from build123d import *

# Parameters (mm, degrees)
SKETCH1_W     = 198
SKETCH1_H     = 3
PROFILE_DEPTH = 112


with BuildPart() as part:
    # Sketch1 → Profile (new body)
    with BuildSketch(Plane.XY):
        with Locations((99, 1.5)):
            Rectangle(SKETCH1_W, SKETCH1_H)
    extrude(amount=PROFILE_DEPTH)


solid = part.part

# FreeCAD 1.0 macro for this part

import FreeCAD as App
import Part
import Sketcher

V = App.Vector
Q = App.Units.Quantity

doc = App.newDocument("Part")
body = doc.addObject("PartDesign::Body", "Body")

# Sketch on XY plane
sketch1 = body.newObject("Sketcher::SketchObject", "Sketch")
sketch1.AttachmentSupport = (doc.getObject("XY_Plane"), [""])
sketch1.MapMode = "FlatFace"
sketch1.addGeometry(Part.LineSegment(V(0, 3, 0), V(0, 0, 0)), False)
sketch1.addGeometry(Part.LineSegment(V(0, 0, 0), V(198, 0, 0)), False)
sketch1.addGeometry(Part.LineSegment(V(198, 0, 0), V(198, 3, 0)), False)
sketch1.addGeometry(Part.LineSegment(V(198, 3, 0), V(0, 3, 0)), False)
sketch1.addConstraint(Sketcher.Constraint("Coincident", 0, 2, 1, 1))
sketch1.addConstraint(Sketcher.Constraint("Coincident", 1, 2, 2, 1))
sketch1.addConstraint(Sketcher.Constraint("Coincident", 2, 2, 3, 1))
sketch1.addConstraint(Sketcher.Constraint("Coincident", 3, 2, 0, 1))
sketch1.addConstraint(Sketcher.Constraint("Vertical", 0))
sketch1.addConstraint(Sketcher.Constraint("Horizontal", 1))
sketch1.addConstraint(Sketcher.Constraint("Vertical", 2))
sketch1.addConstraint(Sketcher.Constraint("Horizontal", 3))
sketch1.addConstraint(Sketcher.Constraint("Coincident", 0, 2, -1, 1))
sketch1.addConstraint(Sketcher.Constraint("DistanceX", 1, 1, 1, 2, Q("198 mm")))
sketch1.addConstraint(Sketcher.Constraint("DistanceY", 0, 2, 0, 1, Q("3 mm")))
pad1 = body.newObject("PartDesign::Pad", "Pad")
pad1.Profile = sketch1
pad1.Length = 112

doc.recompute()
